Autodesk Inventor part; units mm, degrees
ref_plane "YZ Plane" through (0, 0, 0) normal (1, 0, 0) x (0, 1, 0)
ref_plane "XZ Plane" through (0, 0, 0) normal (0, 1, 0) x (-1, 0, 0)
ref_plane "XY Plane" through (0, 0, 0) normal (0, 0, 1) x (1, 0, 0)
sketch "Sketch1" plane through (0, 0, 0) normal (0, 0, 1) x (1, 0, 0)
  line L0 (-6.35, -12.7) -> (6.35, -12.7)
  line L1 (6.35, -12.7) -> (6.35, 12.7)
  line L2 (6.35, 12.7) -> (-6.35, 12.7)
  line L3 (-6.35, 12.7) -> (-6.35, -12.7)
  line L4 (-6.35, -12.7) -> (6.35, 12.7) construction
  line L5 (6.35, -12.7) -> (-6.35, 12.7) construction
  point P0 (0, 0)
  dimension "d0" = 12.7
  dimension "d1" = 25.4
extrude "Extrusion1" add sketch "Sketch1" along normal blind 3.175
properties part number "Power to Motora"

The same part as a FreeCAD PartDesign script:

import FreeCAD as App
import Part
import Sketcher
Q = App.Units.Quantity

doc = App.newDocument("Part")
params = doc.addObject("Spreadsheet::Sheet", "Params")
for row, (alias, value) in enumerate([
    ("sketch1_height", "1 in"),
    ("sketch1_width", "0.5 in"),
    ("pad1_length", "0.125 in"),
], start=1):
    params.set(f"A{row}", alias)
    params.set(f"B{row}", "=" + value)
    params.setAlias(f"B{row}", alias)

body = doc.addObject("PartDesign::Body", "Body")

sketch1 = doc.addObject("Sketcher::SketchObject", "Sketch")
body.addObject(sketch1)
sketch1.AttachmentSupport = (doc.XY_Plane, [""])
sketch1.MapMode = "FlatFace"
sketch1.addGeometry([
    Part.LineSegment(App.Vector(-6, 13, 0), App.Vector(-6, -13, 0)),
    Part.LineSegment(App.Vector(-6, -13, 0), App.Vector(6, -13, 0)),
    Part.LineSegment(App.Vector(6, -13, 0), App.Vector(6, 13, 0)),
    Part.LineSegment(App.Vector(6, 13, 0), App.Vector(-6, 13, 0)),
], False)
sketch1.addConstraint([
    Sketcher.Constraint("Coincident", 0, 2, 1, 1),
    Sketcher.Constraint("Coincident", 1, 2, 2, 1),
    Sketcher.Constraint("Coincident", 2, 2, 3, 1),
    Sketcher.Constraint("Coincident", 3, 2, 0, 1),
    Sketcher.Constraint("Vertical", 0),
    Sketcher.Constraint("Horizontal", 1),
    Sketcher.Constraint("Vertical", 2),
    Sketcher.Constraint("Horizontal", 3),
    Sketcher.Constraint("Symmetric", 0, 2, 2, 2, -1, 1),
    Sketcher.Constraint("DistanceY", 0, 2, 0, 1, Q("1 in")),
    Sketcher.Constraint("DistanceX", 1, 1, 1, 2, Q("0.5 in")),
])
sketch1.setExpression("Constraints[9]", "Params.sketch1_height")
sketch1.setExpression("Constraints[10]", "Params.sketch1_width")
pad1 = doc.addObject("PartDesign::Pad", "Pad")
body.addObject(pad1)
pad1.Profile = sketch1
pad1.setExpression("Length", "Params.pad1_length")

doc.recompute()
